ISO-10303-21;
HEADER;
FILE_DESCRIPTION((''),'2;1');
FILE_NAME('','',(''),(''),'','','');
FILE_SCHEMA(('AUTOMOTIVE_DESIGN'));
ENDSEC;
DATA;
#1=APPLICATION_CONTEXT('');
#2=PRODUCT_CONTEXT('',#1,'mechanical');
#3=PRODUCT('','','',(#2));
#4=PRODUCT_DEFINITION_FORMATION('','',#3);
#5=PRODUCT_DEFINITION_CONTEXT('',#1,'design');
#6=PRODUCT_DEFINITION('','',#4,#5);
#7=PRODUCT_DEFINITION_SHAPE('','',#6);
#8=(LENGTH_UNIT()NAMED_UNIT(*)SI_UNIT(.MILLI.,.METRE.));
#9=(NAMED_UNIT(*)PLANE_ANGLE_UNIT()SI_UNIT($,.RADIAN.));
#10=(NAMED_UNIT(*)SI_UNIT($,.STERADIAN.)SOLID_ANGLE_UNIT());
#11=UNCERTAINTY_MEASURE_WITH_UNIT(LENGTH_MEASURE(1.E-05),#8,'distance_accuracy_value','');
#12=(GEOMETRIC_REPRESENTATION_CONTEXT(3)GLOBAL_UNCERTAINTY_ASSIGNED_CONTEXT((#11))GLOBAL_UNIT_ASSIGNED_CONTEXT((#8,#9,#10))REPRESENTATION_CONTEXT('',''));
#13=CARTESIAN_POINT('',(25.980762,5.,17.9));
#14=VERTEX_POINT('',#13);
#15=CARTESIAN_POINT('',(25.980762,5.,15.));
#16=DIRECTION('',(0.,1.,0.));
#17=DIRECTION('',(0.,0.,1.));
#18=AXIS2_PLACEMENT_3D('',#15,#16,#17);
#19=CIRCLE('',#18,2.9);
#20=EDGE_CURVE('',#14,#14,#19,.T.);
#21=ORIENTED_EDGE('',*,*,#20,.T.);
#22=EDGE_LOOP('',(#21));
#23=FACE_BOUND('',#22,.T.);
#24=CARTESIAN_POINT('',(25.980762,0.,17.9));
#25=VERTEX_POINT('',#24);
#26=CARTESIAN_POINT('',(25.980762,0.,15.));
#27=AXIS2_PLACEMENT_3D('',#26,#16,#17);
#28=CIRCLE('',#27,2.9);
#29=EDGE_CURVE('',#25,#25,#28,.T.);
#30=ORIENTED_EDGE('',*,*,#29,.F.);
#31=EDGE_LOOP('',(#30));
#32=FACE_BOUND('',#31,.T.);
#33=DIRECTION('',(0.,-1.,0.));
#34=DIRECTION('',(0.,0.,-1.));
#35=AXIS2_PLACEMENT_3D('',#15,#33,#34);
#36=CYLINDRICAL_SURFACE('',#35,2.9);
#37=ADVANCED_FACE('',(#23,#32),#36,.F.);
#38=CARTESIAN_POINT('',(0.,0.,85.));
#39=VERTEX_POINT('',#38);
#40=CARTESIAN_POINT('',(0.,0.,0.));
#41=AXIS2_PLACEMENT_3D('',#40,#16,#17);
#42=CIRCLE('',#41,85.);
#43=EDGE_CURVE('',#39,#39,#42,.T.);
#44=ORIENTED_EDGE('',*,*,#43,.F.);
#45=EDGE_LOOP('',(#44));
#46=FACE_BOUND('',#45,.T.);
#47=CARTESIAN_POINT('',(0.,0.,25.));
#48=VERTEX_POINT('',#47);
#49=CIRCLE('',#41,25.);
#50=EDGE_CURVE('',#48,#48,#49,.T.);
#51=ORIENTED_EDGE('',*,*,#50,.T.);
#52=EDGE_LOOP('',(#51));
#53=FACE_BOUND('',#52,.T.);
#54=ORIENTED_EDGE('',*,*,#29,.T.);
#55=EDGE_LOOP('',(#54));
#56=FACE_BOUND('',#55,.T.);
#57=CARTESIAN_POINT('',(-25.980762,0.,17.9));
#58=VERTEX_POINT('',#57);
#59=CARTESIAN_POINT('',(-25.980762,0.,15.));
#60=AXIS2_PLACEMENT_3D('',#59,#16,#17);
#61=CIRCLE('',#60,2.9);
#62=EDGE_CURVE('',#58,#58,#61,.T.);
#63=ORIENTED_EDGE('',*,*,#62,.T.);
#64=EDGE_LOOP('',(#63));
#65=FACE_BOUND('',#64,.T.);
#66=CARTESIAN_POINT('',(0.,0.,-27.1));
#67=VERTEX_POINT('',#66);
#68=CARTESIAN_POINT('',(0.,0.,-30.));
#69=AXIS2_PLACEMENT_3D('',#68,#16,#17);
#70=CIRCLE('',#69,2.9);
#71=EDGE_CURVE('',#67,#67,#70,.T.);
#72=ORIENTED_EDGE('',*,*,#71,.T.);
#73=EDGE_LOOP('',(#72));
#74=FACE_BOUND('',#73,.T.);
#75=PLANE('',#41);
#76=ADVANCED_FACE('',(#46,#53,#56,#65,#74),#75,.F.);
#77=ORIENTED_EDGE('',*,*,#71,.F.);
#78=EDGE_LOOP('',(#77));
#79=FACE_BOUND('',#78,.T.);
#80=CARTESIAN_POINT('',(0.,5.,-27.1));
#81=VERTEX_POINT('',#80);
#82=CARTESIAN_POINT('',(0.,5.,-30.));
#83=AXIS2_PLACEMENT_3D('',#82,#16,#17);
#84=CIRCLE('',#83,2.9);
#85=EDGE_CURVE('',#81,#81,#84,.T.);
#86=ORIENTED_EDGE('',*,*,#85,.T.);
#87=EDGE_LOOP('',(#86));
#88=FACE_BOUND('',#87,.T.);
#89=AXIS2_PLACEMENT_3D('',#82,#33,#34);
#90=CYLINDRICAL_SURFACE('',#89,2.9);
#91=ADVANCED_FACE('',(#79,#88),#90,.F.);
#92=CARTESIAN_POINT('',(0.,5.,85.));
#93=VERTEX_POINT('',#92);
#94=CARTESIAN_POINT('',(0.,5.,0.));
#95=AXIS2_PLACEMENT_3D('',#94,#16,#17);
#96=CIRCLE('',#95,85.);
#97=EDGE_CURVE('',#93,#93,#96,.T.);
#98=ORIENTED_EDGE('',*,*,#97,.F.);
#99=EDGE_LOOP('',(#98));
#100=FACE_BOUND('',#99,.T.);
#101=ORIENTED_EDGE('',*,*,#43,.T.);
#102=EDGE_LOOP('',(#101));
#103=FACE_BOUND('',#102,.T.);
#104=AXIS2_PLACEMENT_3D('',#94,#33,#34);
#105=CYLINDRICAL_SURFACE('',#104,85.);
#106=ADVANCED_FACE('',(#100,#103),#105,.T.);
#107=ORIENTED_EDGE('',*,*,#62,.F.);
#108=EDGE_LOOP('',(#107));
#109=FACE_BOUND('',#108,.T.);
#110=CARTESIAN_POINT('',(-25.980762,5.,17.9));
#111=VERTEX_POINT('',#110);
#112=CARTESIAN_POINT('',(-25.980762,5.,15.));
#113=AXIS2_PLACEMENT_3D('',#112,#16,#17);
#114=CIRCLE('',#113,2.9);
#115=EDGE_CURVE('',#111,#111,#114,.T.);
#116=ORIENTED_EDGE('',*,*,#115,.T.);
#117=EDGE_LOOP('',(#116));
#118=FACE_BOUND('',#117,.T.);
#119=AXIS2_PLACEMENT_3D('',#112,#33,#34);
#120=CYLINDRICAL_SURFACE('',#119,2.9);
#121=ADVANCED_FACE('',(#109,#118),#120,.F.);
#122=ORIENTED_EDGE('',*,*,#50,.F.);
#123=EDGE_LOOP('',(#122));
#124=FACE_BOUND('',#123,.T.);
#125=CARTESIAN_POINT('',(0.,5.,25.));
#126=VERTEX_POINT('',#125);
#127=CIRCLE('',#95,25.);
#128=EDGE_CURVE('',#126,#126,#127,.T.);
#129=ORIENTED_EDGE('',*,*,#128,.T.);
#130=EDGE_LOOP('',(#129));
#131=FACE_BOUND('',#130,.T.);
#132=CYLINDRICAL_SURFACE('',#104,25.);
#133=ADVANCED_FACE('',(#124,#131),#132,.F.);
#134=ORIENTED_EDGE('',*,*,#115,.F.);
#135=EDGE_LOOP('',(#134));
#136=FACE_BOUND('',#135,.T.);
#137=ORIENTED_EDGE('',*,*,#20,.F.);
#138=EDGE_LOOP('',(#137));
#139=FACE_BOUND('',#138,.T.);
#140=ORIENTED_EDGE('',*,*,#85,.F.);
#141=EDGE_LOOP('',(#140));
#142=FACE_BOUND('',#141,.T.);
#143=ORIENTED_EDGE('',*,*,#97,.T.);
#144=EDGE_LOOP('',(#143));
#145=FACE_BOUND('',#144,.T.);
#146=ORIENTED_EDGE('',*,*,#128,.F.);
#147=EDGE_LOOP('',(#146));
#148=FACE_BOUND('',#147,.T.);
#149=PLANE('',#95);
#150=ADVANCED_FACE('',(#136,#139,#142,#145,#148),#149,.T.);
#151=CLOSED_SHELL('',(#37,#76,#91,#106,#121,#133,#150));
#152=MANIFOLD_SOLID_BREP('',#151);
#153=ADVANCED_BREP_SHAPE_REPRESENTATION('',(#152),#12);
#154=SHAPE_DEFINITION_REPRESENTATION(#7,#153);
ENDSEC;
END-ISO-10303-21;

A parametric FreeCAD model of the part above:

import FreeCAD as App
import Part
import Sketcher
from FreeCAD import Vector

doc = App.newDocument("Part")
params = doc.addObject("Spreadsheet::Sheet", "Params")
for row, (alias, value) in enumerate([
    ("sketch1_diameter", "170 mm"),
    ("sketch1_diameter2", "50 mm"),
    ("sketch1_diameter3", "5.8 mm"),
    ("pad1_length", "5 mm"),
], start=1):
    params.set(f"A{row}", alias)
    params.set(f"B{row}", "=" + value)
    params.setAlias(f"B{row}", alias)

body = doc.addObject("PartDesign::Body", "Body")

# Sketch on XZ plane
sketch1 = body.newObject("Sketcher::SketchObject", "Sketch")
sketch1.AttachmentSupport = (doc.getObject("XZ_Plane"), [""])
sketch1.MapMode = "FlatFace"
sketch1.addGeometry(Part.Circle(Vector(0, 0, 0), Vector(0, 0, 1), 85), False)
sketch1.addGeometry(Part.Circle(Vector(0, -30, 0), Vector(0, 0, 1), 2.9), False)
sketch1.addGeometry(Part.Circle(Vector(-26, 15, 0), Vector(0, 0, 1), 2.9), False)
sketch1.addGeometry(Part.Circle(Vector(0, 0, 0), Vector(0, 0, 1), 25), False)
sketch1.addGeometry(Part.Circle(Vector(26, 15, 0), Vector(0, 0, 1), 2.9), False)
sketch1.addConstraint(Sketcher.Constraint("Coincident", 0, 3, -1, 1))
sketch1.addConstraint(Sketcher.Constraint("Coincident", 3, 3, -1, 1))
sketch1.addConstraint(Sketcher.Constraint("Equal", 1, 2))
sketch1.addConstraint(Sketcher.Constraint("Equal", 2, 4))
sketch1.addConstraint(Sketcher.Constraint("Symmetric", 2, 3, 4, 3, -2))
sketch1.addConstraint(Sketcher.Constraint("PointOnObject", 1, 3, -2))
sketch1.addConstraint(Sketcher.Constraint("Diameter", 0, 170.0))
sketch1.addConstraint(Sketcher.Constraint("Diameter", 3, 50.0))
sketch1.addConstraint(Sketcher.Constraint("Diameter", 1, 5.8))
sketch1.addConstraint(Sketcher.Constraint("DistanceY", 1, 3, -1, 1, 30.0))
sketch1.addConstraint(Sketcher.Constraint("DistanceY", -1, 1, 2, 3, 15.0))
sketch1.addConstraint(Sketcher.Constraint("DistanceX", 2, 3, -1, 1, 25.980762))
sketch1.setExpression("Constraints[6]", "Params.sketch1_diameter")
sketch1.setExpression("Constraints[7]", "Params.sketch1_diameter2")
sketch1.setExpression("Constraints[8]", "Params.sketch1_diameter3")
pad1 = body.newObject("PartDesign::Pad", "Pad")
pad1.Profile = sketch1
pad1.setExpression("Length", "Params.pad1_length")
pad1.Reversed = True

doc.recompute()
